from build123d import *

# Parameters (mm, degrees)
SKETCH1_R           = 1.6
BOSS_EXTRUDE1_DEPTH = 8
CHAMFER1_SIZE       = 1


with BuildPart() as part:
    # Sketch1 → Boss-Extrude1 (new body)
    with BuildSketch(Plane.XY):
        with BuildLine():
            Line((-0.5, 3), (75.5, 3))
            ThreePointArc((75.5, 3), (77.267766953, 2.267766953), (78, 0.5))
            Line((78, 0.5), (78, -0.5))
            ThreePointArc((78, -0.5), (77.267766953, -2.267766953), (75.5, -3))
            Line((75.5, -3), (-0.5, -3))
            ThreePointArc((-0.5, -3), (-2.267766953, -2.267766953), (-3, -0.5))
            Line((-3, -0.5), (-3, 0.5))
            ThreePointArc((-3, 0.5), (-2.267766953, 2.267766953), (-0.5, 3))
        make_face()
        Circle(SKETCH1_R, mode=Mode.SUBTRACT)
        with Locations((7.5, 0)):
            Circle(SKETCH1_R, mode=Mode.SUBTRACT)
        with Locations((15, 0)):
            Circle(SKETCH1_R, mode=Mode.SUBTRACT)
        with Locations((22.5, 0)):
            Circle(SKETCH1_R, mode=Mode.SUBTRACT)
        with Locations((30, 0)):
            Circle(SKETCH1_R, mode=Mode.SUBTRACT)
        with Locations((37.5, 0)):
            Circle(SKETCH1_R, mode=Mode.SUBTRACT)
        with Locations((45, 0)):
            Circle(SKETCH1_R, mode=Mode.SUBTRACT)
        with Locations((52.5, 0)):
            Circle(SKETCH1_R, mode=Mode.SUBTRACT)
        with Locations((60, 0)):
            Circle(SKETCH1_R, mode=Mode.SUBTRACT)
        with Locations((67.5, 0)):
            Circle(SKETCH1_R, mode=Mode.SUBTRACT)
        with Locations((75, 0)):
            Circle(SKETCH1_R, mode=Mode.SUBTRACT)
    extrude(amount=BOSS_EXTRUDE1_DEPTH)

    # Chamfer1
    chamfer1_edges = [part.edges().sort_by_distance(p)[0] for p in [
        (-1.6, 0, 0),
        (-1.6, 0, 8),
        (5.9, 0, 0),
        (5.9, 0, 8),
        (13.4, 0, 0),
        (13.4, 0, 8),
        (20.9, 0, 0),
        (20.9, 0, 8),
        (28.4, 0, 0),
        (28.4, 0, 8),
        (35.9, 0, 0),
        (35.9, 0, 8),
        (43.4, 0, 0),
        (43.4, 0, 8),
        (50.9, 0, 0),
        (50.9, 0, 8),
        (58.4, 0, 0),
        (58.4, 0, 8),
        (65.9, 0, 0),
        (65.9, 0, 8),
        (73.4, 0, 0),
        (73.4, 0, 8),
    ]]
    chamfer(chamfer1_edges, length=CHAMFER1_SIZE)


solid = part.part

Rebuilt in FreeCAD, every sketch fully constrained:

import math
import FreeCAD as App
import Part
import Sketcher

V = App.Vector


def edges_at(feature, points):
    """Names of the edges that pass closest to the given points."""
    edges = feature.Shape.Edges
    near = lambda p: min(range(len(edges)), key=lambda i: edges[i].distToShape(Part.Vertex(*p))[0])
    return sorted({f"Edge{near(p) + 1}" for p in points})

doc = App.newDocument("Part")
body = doc.addObject("PartDesign::Body", "Body")

sketch1 = doc.addObject("Sketcher::SketchObject", "Sketch")
body.addObject(sketch1)
sketch1.AttachmentSupport = (doc.XY_Plane, [""])
sketch1.MapMode = "FlatFace"
sketch1.addGeometry([
    Part.LineSegment(V(75.5, 3, 0), V(-0.5, 3, 0)),
    Part.ArcOfCircle(Part.Circle(V(-0.5, 0.5, 0), V(0, 0, 1), 2.5), math.radians(90), math.radians(180)),
    Part.LineSegment(V(-3, 0.5, 0), V(-3, -0.5, 0)),
    Part.ArcOfCircle(Part.Circle(V(-0.5, -0.5, 0), V(0, 0, 1), 2.5), math.radians(180), math.radians(270)),
    Part.LineSegment(V(-0.5, -3, 0), V(75.5, -3, 0)),
    Part.ArcOfCircle(Part.Circle(V(75.5, -0.5, 0), V(0, 0, 1), 2.5), math.radians(-90), math.radians(0)),
    Part.LineSegment(V(78, -0.5, 0), V(78, 0.5, 0)),
    Part.ArcOfCircle(Part.Circle(V(75.5, 0.5, 0), V(0, 0, 1), 2.5), math.radians(0), math.radians(90)),
    Part.Circle(V(75, 0, 0), V(0, 0, 1), 1.6),
    Part.Circle(V(67.5, 0, 0), V(0, 0, 1), 1.6),
    Part.Circle(V(60, 0, 0), V(0, 0, 1), 1.6),
    Part.Circle(V(52.5, 0, 0), V(0, 0, 1), 1.6),
    Part.Circle(V(45, 0, 0), V(0, 0, 1), 1.6),
    Part.Circle(V(37.5, 0, 0), V(0, 0, 1), 1.6),
    Part.Circle(V(30, 0, 0), V(0, 0, 1), 1.6),
    Part.Circle(V(22.5, 0, 0), V(0, 0, 1), 1.6),
    Part.Circle(V(15, 0, 0), V(0, 0, 1), 1.6),
    Part.Circle(V(7.5, 0, 0), V(0, 0, 1), 1.6),
    Part.Circle(V(0, 0, 0), V(0, 0, 1), 1.6),
], False)
sketch1.addConstraint([
    Sketcher.Constraint("Tangent", 0, 2, 1, 1),
    Sketcher.Constraint("Tangent", 1, 2, 2, 1),
    Sketcher.Constraint("Tangent", 2, 2, 3, 1),
    Sketcher.Constraint("Tangent", 3, 2, 4, 1),
    Sketcher.Constraint("Tangent", 4, 2, 5, 1),
    Sketcher.Constraint("Tangent", 5, 2, 6, 1),
    Sketcher.Constraint("Tangent", 6, 2, 7, 1),
    Sketcher.Constraint("Tangent", 7, 2, 0, 1),
    Sketcher.Constraint("Horizontal", 0),
    Sketcher.Constraint("Vertical", 2),
    Sketcher.Constraint("Horizontal", 4),
    Sketcher.Constraint("Vertical", 6),
    Sketcher.Constraint("Coincident", 18, 3, -1, 1),
    Sketcher.Constraint("Equal", 1, 3),
    Sketcher.Constraint("Equal", 3, 5),
    Sketcher.Constraint("Equal", 5, 7),
    Sketcher.Constraint("Equal", 8, 9),
    Sketcher.Constraint("Equal", 9, 10),
    Sketcher.Constraint("Equal", 10, 11),
    Sketcher.Constraint("Equal", 11, 12),
    Sketcher.Constraint("Equal", 12, 13),
    Sketcher.Constraint("Equal", 13, 14),
    Sketcher.Constraint("Equal", 14, 15),
    Sketcher.Constraint("Equal", 15, 16),
    Sketcher.Constraint("Equal", 16, 17),
    Sketcher.Constraint("Equal", 17, 18),
    Sketcher.Constraint("PointOnObject", 8, 3, -1),
    Sketcher.Constraint("PointOnObject", 9, 3, -1),
    Sketcher.Constraint("PointOnObject", 10, 3, -1),
    Sketcher.Constraint("PointOnObject", 11, 3, -1),
    Sketcher.Constraint("PointOnObject", 12, 3, -1),
    Sketcher.Constraint("PointOnObject", 13, 3, -1),
    Sketcher.Constraint("PointOnObject", 14, 3, -1),
    Sketcher.Constraint("PointOnObject", 15, 3, -1),
    Sketcher.Constraint("PointOnObject", 16, 3, -1),
    Sketcher.Constraint("PointOnObject", 17, 3, -1),
    Sketcher.Constraint("Diameter", 8, 3.2),
    Sketcher.Constraint("Radius", 1, 2.5),
    Sketcher.Constraint("DistanceX", 0, 2, 0, 1, 76.0),
    Sketcher.Constraint("DistanceY", 2, 2, 2, 1, 1.0),
    Sketcher.Constraint("DistanceX", -1, 1, 8, 3, 75.0),
    Sketcher.Constraint("DistanceX", -1, 1, 10, 3, 60.0),
    Sketcher.Constraint("DistanceX", -1, 1, 12, 3, 45.0),
    Sketcher.Constraint("DistanceX", -1, 1, 14, 3, 30.0),
    Sketcher.Constraint("DistanceX", -1, 1, 16, 3, 15.0),
    Sketcher.Constraint("DistanceY", -1, 1, 0, 2, 3.0),
    Sketcher.Constraint("DistanceX", 1, 2, -1, 1, 3.0),
    Sketcher.Constraint("DistanceX", 9, 3, 5, 3, 8.0),
    Sketcher.Constraint("DistanceX", 11, 3, 9, 3, 15.0),
    Sketcher.Constraint("DistanceX", 13, 3, 11, 3, 15.0),
    Sketcher.Constraint("DistanceX", 15, 3, 13, 3, 15.0),
    Sketcher.Constraint("DistanceX", 1, 3, 17, 3, 8.0),
])
pad1 = doc.addObject("PartDesign::Pad", "Pad")
body.addObject(pad1)
pad1.Profile = sketch1
pad1.Length = 8
doc.recompute()

chamfer = doc.addObject("PartDesign::Chamfer", "Chamfer")
body.addObject(chamfer)
chamfer.Base = (pad1, edges_at(pad1, [
    (-1.6, 0, 0),
    (-1.6, 0, 8),
    (5.9, 0, 0),
    (5.9, 0, 8),
    (13.4, 0, 0),
    (13.4, 0, 8),
    (20.9, 0, 0),
    (20.9, 0, 8),
    (28.4, 0, 0),
    (28.4, 0, 8),
    (35.9, 0, 0),
    (35.9, 0, 8),
    (43.4, 0, 0),
    (43.4, 0, 8),
    (50.9, 0, 0),
    (50.9, 0, 8),
    (58.4, 0, 0),
    (58.4, 0, 8),
    (65.9, 0, 0),
    (65.9, 0, 8),
    (73.4, 0, 0),
    (73.4, 0, 8),
]))
chamfer.Size = 1

doc.recompute()
